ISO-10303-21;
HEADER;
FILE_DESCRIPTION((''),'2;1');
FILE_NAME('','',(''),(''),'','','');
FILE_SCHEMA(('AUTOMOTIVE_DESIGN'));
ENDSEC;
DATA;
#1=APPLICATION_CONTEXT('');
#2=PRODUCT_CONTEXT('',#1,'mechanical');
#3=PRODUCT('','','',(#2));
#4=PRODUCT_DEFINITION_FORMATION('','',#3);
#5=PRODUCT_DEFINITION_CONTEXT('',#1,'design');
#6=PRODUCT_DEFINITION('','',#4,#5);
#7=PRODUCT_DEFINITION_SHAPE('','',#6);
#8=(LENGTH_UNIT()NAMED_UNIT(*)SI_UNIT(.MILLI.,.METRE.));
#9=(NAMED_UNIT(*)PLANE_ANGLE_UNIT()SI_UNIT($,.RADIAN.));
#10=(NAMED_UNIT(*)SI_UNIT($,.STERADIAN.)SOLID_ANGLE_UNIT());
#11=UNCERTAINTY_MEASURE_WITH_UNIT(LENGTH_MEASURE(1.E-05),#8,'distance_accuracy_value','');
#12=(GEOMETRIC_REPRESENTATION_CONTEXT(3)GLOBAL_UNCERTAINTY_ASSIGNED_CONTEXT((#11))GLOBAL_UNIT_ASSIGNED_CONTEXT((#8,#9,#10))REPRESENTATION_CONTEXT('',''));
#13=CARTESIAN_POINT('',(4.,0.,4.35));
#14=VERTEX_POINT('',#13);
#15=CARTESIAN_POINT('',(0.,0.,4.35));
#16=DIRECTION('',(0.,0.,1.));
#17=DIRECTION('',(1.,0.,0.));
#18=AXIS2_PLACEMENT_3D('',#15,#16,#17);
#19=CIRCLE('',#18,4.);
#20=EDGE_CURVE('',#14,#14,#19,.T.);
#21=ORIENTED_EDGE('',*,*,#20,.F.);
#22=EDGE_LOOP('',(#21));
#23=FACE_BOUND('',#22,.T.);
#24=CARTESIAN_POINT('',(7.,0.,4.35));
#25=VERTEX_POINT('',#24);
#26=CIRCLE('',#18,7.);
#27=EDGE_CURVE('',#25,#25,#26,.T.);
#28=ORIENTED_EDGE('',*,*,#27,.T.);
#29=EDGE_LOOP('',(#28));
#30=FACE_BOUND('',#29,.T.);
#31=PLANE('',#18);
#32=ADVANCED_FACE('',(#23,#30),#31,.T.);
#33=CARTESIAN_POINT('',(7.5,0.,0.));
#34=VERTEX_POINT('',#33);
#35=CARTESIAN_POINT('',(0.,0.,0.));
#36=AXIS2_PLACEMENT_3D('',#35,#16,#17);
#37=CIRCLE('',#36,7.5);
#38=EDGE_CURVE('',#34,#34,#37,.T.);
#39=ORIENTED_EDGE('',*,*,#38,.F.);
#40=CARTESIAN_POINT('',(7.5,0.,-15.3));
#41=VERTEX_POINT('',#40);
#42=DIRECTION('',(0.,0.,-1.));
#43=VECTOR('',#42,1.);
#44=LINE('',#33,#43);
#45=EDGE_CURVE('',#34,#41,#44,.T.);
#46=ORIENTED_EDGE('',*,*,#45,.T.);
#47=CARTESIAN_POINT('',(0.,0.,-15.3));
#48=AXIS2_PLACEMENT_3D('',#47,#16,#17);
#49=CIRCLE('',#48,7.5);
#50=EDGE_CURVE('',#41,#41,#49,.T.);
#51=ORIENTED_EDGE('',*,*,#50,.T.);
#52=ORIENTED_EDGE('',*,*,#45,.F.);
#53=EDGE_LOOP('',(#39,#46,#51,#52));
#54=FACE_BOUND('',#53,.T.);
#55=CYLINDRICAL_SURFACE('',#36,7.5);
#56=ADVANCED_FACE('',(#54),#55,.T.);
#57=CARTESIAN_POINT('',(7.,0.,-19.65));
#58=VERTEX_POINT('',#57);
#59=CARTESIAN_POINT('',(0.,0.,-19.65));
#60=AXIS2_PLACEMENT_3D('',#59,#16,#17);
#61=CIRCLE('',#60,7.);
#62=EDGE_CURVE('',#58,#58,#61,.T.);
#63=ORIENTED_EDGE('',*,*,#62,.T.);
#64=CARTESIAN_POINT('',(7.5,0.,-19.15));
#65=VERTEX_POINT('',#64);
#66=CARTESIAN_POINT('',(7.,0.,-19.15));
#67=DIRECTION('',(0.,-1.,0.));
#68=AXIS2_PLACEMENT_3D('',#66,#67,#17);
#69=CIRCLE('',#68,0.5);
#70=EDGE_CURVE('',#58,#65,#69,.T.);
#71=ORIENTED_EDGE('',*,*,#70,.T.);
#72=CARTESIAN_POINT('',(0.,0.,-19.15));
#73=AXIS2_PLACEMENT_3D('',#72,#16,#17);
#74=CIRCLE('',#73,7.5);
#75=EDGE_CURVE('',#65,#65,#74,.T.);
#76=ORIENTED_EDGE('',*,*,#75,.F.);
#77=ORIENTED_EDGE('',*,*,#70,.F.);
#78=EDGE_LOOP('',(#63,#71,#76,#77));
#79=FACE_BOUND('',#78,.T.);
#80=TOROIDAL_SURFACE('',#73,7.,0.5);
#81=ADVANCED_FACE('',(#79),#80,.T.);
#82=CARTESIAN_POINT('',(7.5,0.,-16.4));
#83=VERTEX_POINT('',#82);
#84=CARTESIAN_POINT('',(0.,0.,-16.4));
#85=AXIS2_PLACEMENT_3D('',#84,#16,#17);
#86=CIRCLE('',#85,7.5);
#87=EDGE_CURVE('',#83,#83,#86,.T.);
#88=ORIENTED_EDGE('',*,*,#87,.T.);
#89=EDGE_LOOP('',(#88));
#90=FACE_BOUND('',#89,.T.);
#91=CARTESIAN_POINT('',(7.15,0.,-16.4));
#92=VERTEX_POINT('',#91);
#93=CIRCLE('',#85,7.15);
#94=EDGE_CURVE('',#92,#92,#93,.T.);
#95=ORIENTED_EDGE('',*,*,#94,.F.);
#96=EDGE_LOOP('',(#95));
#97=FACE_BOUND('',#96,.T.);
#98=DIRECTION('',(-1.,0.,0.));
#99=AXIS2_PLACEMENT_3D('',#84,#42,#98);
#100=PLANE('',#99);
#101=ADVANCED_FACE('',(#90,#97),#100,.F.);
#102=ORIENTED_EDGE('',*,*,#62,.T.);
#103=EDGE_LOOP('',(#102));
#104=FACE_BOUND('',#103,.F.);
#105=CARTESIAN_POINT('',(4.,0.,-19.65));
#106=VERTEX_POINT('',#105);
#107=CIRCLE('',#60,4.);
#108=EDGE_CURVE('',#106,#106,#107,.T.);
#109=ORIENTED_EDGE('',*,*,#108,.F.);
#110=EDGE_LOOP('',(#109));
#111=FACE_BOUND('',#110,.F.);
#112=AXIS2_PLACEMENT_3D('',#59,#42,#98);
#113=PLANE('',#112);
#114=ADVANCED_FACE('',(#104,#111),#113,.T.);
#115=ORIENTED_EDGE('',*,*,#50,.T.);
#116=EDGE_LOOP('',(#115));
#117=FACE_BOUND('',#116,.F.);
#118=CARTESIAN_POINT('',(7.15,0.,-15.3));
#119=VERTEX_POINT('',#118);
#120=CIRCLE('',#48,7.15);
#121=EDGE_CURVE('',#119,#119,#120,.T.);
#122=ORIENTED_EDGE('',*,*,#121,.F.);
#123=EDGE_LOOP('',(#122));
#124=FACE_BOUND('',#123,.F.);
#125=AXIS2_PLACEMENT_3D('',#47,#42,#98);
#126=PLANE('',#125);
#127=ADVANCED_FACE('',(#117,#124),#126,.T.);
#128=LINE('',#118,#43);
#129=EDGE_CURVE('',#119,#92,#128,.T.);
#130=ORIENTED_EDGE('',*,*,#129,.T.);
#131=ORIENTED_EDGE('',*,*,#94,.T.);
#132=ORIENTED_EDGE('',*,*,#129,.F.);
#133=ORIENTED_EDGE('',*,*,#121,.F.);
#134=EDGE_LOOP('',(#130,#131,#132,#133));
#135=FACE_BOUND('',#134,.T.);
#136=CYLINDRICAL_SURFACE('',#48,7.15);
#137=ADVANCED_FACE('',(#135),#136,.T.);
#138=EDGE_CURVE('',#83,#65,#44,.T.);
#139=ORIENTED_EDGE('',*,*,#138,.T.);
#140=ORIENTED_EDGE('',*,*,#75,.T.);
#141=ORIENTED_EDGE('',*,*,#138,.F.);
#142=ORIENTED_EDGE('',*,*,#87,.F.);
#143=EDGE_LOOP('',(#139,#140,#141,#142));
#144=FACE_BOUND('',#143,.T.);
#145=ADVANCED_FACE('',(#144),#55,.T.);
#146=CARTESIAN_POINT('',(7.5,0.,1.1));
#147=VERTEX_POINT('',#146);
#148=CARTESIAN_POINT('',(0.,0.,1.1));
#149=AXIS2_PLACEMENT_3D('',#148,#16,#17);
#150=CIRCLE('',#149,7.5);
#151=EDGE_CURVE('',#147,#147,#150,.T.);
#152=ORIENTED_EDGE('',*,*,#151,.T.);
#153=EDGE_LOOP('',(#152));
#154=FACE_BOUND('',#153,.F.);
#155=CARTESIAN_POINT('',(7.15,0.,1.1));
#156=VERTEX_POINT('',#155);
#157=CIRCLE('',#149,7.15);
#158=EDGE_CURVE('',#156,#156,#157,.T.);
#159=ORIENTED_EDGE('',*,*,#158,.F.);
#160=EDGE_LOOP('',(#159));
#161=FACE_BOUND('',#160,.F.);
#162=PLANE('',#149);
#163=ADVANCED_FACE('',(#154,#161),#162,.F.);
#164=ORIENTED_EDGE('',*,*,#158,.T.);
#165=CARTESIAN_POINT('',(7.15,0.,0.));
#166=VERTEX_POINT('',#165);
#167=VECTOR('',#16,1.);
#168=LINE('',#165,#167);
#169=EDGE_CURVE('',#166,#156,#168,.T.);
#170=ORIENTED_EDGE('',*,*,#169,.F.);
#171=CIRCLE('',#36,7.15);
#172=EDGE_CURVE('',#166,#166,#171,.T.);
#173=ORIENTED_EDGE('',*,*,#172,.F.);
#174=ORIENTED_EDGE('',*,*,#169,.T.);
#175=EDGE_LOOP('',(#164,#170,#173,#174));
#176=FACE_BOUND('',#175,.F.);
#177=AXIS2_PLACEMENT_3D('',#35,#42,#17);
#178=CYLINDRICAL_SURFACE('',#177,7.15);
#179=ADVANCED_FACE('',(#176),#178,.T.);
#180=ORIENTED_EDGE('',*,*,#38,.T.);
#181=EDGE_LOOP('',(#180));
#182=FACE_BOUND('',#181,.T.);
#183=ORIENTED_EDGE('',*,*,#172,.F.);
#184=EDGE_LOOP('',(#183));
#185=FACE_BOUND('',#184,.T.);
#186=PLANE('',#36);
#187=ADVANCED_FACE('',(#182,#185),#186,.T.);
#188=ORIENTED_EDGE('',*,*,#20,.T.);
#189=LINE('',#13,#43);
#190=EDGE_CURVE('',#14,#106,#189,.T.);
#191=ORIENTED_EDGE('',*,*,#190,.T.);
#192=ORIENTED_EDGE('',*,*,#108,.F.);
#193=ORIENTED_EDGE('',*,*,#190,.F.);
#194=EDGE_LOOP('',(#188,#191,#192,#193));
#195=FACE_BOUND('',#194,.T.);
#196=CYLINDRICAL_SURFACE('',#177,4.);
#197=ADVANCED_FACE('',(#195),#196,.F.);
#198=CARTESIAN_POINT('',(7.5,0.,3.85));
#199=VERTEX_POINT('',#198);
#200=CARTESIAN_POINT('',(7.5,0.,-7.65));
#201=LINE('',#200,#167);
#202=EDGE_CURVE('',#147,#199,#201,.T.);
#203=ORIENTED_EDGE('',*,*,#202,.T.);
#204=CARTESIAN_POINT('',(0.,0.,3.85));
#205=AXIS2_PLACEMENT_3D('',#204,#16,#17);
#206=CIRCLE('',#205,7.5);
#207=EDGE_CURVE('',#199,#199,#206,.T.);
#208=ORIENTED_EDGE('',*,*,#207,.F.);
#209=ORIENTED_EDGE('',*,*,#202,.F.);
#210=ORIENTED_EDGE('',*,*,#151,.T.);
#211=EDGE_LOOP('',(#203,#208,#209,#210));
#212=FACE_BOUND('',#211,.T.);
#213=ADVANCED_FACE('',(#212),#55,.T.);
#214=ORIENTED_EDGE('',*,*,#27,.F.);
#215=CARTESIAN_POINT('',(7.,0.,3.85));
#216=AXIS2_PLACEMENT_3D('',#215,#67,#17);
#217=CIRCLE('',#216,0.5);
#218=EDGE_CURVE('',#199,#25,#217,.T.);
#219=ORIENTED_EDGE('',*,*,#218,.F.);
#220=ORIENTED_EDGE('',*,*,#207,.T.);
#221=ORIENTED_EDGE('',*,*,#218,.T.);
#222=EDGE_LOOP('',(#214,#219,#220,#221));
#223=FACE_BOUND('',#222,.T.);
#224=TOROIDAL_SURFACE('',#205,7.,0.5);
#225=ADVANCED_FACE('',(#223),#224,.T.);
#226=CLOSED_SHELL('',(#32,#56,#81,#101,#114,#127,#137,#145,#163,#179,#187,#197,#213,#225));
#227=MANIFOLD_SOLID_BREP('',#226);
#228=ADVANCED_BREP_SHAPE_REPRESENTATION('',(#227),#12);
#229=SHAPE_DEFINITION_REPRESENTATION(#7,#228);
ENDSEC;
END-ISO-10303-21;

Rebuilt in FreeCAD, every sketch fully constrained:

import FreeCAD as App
import Part
import Sketcher
Q = App.Units.Quantity


def edges_at(feature, points):
    """Names of the edges that pass closest to the given points."""
    edges = feature.Shape.Edges
    near = lambda p: min(range(len(edges)), key=lambda i: edges[i].distToShape(Part.Vertex(*p))[0])
    return sorted({f"Edge{near(p) + 1}" for p in points})

doc = App.newDocument("Part")
body = doc.addObject("PartDesign::Body", "Body")

# Sketch on XY plane
sketch1 = body.newObject("Sketcher::SketchObject", "Sketch")
sketch1.AttachmentSupport = (doc.getObject("XY_Plane"), [""])
sketch1.MapMode = "FlatFace"
sketch1.addGeometry(Part.Circle(App.Vector(0, 0, 0), App.Vector(0, 0, 1), 7.5), False)
sketch1.addGeometry(Part.Circle(App.Vector(0, 0, 0), App.Vector(0, 0, 1), 4), False)
sketch1.addConstraint(Sketcher.Constraint("Coincident", 0, 3, -1, 1))
sketch1.addConstraint(Sketcher.Constraint("Coincident", 1, 3, -1, 1))
sketch1.addConstraint(Sketcher.Constraint("Diameter", 0, Q("15 mm")))
sketch1.addConstraint(Sketcher.Constraint("Diameter", 1, Q("8 mm")))
pad1 = body.newObject("PartDesign::Pad", "Pad")
pad1.Profile = sketch1
pad1.Type = "TwoLengths"
pad1.Length = 4.35
pad1.Length2 = 7.65

# Sketch on XY plane
sketch2 = body.newObject("Sketcher::SketchObject", "Sketch001")
sketch2.AttachmentSupport = (doc.getObject("XY_Plane"), [""])
sketch2.MapMode = "FlatFace"
sketch2.addGeometry(Part.Circle(App.Vector(0, 0, 0), App.Vector(0, 0, 1), 7.5), False)
sketch2.addGeometry(Part.Circle(App.Vector(0, 0, 0), App.Vector(0, 0, 1), 7.15), False)
sketch2.addConstraint(Sketcher.Constraint("Coincident", 0, 3, -1, 1))
sketch2.addConstraint(Sketcher.Constraint("Coincident", 1, 3, -1, 1))
sketch2.addConstraint(Sketcher.Constraint("Diameter", 0, Q("15 mm")))
sketch2.addConstraint(Sketcher.Constraint("Diameter", 1, Q("14.3 mm")))
pocket1 = body.newObject("PartDesign::Pocket", "Pocket")
pocket1.Profile = sketch2
pocket1.Length = 1.1
pocket1.Reversed = True
doc.recompute()

fillet = body.newObject("PartDesign::Fillet", "Fillet")
fillet.Base = (pocket1, edges_at(pocket1, [(-7.5, 0, 4.35)]))
fillet.Radius = 0.5
doc.recompute()

datumplane = body.newObject("PartDesign::Plane", "DatumPlane")
datumplane.AttachmentSupport = (doc.getObject("XY_Plane"), [""])
datumplane.MapMode = "FlatFace"
datumplane.AttachmentOffset = App.Placement(App.Vector(0, 0, -7.65), App.Rotation())
mirrored = body.newObject("PartDesign::Mirrored", "Mirrored")
mirrored.Originals = [pad1, pocket1, fillet]
mirrored.MirrorPlane = (datumplane, [""])
body.Tip = mirrored

doc.recompute()
